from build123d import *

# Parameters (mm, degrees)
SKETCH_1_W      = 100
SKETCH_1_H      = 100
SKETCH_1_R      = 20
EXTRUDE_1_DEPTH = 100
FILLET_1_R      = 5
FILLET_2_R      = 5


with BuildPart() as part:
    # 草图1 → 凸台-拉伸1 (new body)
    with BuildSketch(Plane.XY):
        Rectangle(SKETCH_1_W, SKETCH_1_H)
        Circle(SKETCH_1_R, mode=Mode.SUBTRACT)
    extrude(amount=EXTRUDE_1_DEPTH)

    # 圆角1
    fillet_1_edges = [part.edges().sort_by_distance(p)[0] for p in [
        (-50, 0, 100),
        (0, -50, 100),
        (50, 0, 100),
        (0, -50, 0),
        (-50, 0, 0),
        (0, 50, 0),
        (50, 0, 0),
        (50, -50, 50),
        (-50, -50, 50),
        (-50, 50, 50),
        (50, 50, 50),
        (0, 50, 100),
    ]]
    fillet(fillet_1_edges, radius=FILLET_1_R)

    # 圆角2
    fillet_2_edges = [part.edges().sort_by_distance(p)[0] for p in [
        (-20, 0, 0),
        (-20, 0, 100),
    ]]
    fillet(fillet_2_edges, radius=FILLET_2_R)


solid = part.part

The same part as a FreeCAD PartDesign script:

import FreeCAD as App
import Part
import Sketcher

V = App.Vector
Q = App.Units.Quantity


def edges_at(feature, points):
    """Names of the edges that pass closest to the given points."""
    edges = feature.Shape.Edges
    near = lambda p: min(range(len(edges)), key=lambda i: edges[i].distToShape(Part.Vertex(*p))[0])
    return sorted({f"Edge{near(p) + 1}" for p in points})

doc = App.newDocument("Part")
body = doc.addObject("PartDesign::Body", "Body")

# Sketch on XY plane
sketch1 = body.newObject("Sketcher::SketchObject", "Sketch")
sketch1.AttachmentSupport = (doc.getObject("XY_Plane"), [""])
sketch1.MapMode = "FlatFace"
sketch1.addGeometry(Part.LineSegment(V(-50, 50, 0), V(-50, -50, 0)), False)
sketch1.addGeometry(Part.LineSegment(V(-50, -50, 0), V(50, -50, 0)), False)
sketch1.addGeometry(Part.LineSegment(V(50, -50, 0), V(50, 50, 0)), False)
sketch1.addGeometry(Part.LineSegment(V(50, 50, 0), V(-50, 50, 0)), False)
sketch1.addGeometry(Part.Circle(V(0, 0, 0), V(0, 0, 1), 20), False)
sketch1.addConstraint(Sketcher.Constraint("Coincident", 0, 2, 1, 1))
sketch1.addConstraint(Sketcher.Constraint("Coincident", 1, 2, 2, 1))
sketch1.addConstraint(Sketcher.Constraint("Coincident", 2, 2, 3, 1))
sketch1.addConstraint(Sketcher.Constraint("Coincident", 3, 2, 0, 1))
sketch1.addConstraint(Sketcher.Constraint("Vertical", 0))
sketch1.addConstraint(Sketcher.Constraint("Horizontal", 1))
sketch1.addConstraint(Sketcher.Constraint("Vertical", 2))
sketch1.addConstraint(Sketcher.Constraint("Horizontal", 3))
sketch1.addConstraint(Sketcher.Constraint("Coincident", 4, 3, -1, 1))
sketch1.addConstraint(Sketcher.Constraint("Symmetric", 0, 2, 2, 2, -1, 1))
sketch1.addConstraint(Sketcher.Constraint("Equal", 3, 0))
sketch1.addConstraint(Sketcher.Constraint("Diameter", 4, Q("40 mm")))
sketch1.addConstraint(Sketcher.Constraint("DistanceX", 1, 1, 1, 2, Q("100 mm")))
pad1 = body.newObject("PartDesign::Pad", "Pad")
pad1.Profile = sketch1
pad1.Length = 100
doc.recompute()

fillet = body.newObject("PartDesign::Fillet", "Fillet")
fillet.Base = (pad1, edges_at(pad1, [
    (-50, 0, 100),
    (0, -50, 100),
    (50, 0, 100),
    (0, -50, 0),
    (-50, 0, 0),
    (0, 50, 0),
    (50, 0, 0),
    (50, -50, 50),
    (-50, -50, 50),
    (-50, 50, 50),
    (50, 50, 50),
    (0, 50, 100),
]))
fillet.Radius = 5
doc.recompute()

fillet2 = body.newObject("PartDesign::Fillet", "Fillet001")
fillet2.Base = (fillet, edges_at(fillet, [(-20, 0, 0), (-20, 0, 100)]))
fillet2.Radius = 5

doc.recompute()
